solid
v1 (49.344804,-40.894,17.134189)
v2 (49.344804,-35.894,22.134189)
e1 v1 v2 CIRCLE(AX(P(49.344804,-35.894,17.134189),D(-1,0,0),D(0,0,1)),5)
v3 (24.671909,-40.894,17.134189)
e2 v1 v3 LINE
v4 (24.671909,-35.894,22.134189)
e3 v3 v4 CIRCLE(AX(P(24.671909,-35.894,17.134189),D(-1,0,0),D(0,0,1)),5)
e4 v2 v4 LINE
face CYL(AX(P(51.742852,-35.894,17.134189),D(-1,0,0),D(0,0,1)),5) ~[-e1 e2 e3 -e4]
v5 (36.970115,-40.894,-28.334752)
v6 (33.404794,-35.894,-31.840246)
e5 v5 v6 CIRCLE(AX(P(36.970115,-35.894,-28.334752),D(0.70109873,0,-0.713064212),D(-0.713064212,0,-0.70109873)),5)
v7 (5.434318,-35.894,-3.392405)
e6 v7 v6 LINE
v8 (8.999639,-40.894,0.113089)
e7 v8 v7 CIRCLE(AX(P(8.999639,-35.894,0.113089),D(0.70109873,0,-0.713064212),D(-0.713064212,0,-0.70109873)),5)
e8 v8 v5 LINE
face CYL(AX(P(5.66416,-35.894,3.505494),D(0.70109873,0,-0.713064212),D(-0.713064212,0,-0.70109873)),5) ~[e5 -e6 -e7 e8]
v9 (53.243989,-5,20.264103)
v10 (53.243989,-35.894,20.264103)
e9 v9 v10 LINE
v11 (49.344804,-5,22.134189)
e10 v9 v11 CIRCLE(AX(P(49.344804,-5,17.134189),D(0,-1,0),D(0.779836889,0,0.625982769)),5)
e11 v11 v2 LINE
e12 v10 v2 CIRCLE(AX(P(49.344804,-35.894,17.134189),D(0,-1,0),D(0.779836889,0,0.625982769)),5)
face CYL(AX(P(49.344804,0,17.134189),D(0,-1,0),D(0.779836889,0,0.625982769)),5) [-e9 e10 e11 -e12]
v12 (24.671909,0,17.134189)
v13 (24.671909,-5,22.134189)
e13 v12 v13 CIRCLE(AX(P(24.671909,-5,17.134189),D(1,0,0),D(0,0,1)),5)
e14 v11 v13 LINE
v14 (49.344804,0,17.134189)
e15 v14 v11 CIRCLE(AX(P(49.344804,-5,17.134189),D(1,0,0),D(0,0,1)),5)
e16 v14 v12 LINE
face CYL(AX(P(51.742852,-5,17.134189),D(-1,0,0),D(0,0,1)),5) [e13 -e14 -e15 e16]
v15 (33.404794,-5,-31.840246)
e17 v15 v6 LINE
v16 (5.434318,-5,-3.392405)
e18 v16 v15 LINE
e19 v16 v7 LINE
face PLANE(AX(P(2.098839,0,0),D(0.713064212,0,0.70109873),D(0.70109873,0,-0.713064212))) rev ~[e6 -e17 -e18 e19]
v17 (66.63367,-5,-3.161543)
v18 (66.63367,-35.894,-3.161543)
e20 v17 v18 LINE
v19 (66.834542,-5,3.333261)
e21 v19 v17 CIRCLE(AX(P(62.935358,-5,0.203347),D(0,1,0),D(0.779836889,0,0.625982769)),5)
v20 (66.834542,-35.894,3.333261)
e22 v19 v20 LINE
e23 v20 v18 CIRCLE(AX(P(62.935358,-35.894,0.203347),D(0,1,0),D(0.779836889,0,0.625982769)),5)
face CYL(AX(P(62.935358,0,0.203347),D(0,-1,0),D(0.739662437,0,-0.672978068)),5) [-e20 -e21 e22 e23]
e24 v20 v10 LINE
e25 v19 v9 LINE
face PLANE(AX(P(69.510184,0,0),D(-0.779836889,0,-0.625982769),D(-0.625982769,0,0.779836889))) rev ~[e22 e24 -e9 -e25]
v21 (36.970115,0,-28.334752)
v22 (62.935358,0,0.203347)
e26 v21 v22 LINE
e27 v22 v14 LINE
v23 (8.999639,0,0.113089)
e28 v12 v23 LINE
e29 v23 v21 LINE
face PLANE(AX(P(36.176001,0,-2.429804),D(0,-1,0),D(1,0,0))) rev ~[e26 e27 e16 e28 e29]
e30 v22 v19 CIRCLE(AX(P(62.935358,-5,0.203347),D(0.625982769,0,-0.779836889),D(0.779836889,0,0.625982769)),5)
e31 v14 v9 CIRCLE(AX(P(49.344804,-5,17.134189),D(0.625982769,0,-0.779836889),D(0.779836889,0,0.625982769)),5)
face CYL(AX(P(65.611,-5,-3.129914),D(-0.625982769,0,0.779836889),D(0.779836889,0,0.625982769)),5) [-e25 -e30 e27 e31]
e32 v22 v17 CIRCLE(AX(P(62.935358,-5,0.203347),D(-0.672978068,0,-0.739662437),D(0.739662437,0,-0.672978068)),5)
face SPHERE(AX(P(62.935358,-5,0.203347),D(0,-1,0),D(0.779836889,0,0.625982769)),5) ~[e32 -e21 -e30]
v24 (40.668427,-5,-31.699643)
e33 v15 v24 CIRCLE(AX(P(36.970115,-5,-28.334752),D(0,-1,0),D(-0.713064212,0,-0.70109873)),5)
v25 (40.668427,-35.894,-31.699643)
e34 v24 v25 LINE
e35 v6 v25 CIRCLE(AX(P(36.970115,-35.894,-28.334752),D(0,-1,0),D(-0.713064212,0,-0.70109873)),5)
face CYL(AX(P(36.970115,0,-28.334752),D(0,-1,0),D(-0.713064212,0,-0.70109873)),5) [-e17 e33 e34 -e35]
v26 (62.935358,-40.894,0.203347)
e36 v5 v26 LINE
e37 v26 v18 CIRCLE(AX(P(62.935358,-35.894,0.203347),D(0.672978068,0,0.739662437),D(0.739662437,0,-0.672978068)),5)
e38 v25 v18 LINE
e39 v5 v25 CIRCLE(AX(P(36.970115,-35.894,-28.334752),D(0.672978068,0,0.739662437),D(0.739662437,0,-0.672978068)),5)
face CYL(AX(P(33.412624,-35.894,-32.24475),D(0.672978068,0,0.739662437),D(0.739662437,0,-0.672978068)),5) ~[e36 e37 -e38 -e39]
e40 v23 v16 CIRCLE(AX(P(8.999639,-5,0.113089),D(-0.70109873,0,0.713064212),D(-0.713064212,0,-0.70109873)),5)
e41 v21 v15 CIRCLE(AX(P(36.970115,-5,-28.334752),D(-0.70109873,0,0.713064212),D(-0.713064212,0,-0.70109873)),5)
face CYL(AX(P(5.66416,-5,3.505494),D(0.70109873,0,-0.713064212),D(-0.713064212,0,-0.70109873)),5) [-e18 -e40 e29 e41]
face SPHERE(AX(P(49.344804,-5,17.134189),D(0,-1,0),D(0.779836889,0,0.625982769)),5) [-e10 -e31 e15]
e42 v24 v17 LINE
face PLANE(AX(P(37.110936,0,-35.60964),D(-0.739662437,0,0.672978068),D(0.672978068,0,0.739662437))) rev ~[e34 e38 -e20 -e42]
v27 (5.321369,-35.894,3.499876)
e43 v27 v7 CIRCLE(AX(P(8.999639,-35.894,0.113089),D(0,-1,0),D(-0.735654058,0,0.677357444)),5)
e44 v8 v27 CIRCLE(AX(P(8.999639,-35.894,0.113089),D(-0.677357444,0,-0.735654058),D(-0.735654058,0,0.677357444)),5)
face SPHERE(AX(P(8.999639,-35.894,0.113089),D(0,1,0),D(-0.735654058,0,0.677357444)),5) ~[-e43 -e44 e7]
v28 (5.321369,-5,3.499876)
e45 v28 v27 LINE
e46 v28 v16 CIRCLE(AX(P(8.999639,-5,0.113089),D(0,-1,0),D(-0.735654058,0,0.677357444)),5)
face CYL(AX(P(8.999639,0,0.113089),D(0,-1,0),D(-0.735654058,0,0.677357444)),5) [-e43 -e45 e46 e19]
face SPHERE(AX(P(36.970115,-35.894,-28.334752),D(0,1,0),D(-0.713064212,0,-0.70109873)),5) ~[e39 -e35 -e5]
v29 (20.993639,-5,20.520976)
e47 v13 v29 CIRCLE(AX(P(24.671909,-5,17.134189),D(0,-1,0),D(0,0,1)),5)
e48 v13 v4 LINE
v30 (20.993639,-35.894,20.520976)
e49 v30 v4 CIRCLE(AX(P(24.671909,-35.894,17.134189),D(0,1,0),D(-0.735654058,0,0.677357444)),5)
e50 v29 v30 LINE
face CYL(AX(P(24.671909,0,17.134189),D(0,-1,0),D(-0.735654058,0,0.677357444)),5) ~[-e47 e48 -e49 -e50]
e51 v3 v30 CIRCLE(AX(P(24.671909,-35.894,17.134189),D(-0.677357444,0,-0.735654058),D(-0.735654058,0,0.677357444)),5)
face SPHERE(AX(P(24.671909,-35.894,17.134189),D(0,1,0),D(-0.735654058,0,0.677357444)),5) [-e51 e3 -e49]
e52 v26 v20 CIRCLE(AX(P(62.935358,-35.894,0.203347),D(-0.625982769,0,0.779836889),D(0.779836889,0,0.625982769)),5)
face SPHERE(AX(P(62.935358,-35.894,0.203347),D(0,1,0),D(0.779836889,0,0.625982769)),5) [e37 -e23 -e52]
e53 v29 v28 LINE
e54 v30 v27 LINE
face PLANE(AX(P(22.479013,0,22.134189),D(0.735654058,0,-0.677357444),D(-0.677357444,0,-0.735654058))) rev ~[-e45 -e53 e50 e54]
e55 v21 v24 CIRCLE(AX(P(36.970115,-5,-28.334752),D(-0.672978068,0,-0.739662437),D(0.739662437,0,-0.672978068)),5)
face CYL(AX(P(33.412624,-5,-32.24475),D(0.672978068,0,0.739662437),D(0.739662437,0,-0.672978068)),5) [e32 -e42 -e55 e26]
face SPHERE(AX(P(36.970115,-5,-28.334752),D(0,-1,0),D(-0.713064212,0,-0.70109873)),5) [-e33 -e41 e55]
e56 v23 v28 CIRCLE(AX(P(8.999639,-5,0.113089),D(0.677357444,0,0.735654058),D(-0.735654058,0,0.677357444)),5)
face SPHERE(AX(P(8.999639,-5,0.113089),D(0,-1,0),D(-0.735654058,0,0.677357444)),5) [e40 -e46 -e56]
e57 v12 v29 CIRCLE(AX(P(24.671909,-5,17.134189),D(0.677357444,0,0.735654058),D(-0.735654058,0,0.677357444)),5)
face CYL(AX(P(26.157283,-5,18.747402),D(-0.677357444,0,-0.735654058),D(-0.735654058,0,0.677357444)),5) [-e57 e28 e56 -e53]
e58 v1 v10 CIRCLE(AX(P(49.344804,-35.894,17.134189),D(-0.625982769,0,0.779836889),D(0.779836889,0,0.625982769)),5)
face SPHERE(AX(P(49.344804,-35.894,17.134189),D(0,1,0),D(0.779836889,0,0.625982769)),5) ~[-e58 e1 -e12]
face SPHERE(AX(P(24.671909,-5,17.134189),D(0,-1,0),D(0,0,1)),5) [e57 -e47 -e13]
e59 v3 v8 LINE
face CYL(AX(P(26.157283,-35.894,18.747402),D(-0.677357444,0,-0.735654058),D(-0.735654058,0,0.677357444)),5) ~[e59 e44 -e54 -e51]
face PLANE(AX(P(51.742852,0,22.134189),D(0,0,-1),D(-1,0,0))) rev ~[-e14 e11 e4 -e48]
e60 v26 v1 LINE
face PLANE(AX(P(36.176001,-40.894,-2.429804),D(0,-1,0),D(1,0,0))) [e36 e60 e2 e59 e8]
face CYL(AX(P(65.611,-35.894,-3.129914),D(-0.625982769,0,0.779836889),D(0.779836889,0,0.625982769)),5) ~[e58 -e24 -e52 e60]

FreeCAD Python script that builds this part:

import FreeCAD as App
import Part
import Sketcher


def add_polygon(sketch, points):
    """Adds a closed chain of lines whose ends are joined by coincident constraints."""
    first, n = sketch.GeometryCount, len(points)
    for a, b in zip(points, points[1:] + points[:1]):
        sketch.addGeometry(Part.LineSegment(App.Vector(*a, 0), App.Vector(*b, 0)), False)
    for i in range(n):
        sketch.addConstraint(Sketcher.Constraint("Coincident", first + i, 2, first + (i + 1) % n, 1))

doc = App.newDocument("Part")
body = doc.addObject("PartDesign::Body", "Body")

# Sketch on XZ plane
sketch1 = body.newObject("Sketcher::SketchObject", "Sketch")
sketch1.AttachmentSupport = (doc.getObject("XZ_Plane"), [""])
sketch1.MapMode = "FlatFace"
add_polygon(sketch1, [(22, 22), (2, 0), (37, -36), (70, 0), (52, 22)])  # lines 0-4
sketch1.addConstraint(Sketcher.Constraint("Horizontal", 4))
sketch1.addConstraint(Sketcher.Constraint("PointOnObject", 0, 2, -1))
sketch1.addConstraint(Sketcher.Constraint("PointOnObject", 2, 2, -1))
sketch1.addConstraint(Sketcher.Constraint("Distance", 3, 28.383101))
sketch1.addConstraint(Sketcher.Constraint("DistanceX", 4, 2, 4, 1, 29.263839))
sketch1.addConstraint(Sketcher.Constraint("Distance", 0, 30.087769))
sketch1.addConstraint(Sketcher.Constraint("DistanceX", -1, 1, 0, 2, 2.098839))
sketch1.addConstraint(Sketcher.Constraint("DistanceY", 1, 2, -1, 1, 35.60964))
sketch1.addConstraint(Sketcher.Constraint("DistanceY", -1, 1, 3, 2, 22.134189))
sketch1.addConstraint(Sketcher.Constraint("Distance", 1, 49.938897))
pad1 = body.newObject("PartDesign::Pad", "Pad")
pad1.Profile = sketch1
pad1.Length = 40.894
doc.recompute()

fillet = body.newObject("PartDesign::Fillet", "Fillet")
fillet.Base = (pad1, ["Edge1"])
fillet.UseAllEdges = True
fillet.Radius = 5

doc.recompute()
